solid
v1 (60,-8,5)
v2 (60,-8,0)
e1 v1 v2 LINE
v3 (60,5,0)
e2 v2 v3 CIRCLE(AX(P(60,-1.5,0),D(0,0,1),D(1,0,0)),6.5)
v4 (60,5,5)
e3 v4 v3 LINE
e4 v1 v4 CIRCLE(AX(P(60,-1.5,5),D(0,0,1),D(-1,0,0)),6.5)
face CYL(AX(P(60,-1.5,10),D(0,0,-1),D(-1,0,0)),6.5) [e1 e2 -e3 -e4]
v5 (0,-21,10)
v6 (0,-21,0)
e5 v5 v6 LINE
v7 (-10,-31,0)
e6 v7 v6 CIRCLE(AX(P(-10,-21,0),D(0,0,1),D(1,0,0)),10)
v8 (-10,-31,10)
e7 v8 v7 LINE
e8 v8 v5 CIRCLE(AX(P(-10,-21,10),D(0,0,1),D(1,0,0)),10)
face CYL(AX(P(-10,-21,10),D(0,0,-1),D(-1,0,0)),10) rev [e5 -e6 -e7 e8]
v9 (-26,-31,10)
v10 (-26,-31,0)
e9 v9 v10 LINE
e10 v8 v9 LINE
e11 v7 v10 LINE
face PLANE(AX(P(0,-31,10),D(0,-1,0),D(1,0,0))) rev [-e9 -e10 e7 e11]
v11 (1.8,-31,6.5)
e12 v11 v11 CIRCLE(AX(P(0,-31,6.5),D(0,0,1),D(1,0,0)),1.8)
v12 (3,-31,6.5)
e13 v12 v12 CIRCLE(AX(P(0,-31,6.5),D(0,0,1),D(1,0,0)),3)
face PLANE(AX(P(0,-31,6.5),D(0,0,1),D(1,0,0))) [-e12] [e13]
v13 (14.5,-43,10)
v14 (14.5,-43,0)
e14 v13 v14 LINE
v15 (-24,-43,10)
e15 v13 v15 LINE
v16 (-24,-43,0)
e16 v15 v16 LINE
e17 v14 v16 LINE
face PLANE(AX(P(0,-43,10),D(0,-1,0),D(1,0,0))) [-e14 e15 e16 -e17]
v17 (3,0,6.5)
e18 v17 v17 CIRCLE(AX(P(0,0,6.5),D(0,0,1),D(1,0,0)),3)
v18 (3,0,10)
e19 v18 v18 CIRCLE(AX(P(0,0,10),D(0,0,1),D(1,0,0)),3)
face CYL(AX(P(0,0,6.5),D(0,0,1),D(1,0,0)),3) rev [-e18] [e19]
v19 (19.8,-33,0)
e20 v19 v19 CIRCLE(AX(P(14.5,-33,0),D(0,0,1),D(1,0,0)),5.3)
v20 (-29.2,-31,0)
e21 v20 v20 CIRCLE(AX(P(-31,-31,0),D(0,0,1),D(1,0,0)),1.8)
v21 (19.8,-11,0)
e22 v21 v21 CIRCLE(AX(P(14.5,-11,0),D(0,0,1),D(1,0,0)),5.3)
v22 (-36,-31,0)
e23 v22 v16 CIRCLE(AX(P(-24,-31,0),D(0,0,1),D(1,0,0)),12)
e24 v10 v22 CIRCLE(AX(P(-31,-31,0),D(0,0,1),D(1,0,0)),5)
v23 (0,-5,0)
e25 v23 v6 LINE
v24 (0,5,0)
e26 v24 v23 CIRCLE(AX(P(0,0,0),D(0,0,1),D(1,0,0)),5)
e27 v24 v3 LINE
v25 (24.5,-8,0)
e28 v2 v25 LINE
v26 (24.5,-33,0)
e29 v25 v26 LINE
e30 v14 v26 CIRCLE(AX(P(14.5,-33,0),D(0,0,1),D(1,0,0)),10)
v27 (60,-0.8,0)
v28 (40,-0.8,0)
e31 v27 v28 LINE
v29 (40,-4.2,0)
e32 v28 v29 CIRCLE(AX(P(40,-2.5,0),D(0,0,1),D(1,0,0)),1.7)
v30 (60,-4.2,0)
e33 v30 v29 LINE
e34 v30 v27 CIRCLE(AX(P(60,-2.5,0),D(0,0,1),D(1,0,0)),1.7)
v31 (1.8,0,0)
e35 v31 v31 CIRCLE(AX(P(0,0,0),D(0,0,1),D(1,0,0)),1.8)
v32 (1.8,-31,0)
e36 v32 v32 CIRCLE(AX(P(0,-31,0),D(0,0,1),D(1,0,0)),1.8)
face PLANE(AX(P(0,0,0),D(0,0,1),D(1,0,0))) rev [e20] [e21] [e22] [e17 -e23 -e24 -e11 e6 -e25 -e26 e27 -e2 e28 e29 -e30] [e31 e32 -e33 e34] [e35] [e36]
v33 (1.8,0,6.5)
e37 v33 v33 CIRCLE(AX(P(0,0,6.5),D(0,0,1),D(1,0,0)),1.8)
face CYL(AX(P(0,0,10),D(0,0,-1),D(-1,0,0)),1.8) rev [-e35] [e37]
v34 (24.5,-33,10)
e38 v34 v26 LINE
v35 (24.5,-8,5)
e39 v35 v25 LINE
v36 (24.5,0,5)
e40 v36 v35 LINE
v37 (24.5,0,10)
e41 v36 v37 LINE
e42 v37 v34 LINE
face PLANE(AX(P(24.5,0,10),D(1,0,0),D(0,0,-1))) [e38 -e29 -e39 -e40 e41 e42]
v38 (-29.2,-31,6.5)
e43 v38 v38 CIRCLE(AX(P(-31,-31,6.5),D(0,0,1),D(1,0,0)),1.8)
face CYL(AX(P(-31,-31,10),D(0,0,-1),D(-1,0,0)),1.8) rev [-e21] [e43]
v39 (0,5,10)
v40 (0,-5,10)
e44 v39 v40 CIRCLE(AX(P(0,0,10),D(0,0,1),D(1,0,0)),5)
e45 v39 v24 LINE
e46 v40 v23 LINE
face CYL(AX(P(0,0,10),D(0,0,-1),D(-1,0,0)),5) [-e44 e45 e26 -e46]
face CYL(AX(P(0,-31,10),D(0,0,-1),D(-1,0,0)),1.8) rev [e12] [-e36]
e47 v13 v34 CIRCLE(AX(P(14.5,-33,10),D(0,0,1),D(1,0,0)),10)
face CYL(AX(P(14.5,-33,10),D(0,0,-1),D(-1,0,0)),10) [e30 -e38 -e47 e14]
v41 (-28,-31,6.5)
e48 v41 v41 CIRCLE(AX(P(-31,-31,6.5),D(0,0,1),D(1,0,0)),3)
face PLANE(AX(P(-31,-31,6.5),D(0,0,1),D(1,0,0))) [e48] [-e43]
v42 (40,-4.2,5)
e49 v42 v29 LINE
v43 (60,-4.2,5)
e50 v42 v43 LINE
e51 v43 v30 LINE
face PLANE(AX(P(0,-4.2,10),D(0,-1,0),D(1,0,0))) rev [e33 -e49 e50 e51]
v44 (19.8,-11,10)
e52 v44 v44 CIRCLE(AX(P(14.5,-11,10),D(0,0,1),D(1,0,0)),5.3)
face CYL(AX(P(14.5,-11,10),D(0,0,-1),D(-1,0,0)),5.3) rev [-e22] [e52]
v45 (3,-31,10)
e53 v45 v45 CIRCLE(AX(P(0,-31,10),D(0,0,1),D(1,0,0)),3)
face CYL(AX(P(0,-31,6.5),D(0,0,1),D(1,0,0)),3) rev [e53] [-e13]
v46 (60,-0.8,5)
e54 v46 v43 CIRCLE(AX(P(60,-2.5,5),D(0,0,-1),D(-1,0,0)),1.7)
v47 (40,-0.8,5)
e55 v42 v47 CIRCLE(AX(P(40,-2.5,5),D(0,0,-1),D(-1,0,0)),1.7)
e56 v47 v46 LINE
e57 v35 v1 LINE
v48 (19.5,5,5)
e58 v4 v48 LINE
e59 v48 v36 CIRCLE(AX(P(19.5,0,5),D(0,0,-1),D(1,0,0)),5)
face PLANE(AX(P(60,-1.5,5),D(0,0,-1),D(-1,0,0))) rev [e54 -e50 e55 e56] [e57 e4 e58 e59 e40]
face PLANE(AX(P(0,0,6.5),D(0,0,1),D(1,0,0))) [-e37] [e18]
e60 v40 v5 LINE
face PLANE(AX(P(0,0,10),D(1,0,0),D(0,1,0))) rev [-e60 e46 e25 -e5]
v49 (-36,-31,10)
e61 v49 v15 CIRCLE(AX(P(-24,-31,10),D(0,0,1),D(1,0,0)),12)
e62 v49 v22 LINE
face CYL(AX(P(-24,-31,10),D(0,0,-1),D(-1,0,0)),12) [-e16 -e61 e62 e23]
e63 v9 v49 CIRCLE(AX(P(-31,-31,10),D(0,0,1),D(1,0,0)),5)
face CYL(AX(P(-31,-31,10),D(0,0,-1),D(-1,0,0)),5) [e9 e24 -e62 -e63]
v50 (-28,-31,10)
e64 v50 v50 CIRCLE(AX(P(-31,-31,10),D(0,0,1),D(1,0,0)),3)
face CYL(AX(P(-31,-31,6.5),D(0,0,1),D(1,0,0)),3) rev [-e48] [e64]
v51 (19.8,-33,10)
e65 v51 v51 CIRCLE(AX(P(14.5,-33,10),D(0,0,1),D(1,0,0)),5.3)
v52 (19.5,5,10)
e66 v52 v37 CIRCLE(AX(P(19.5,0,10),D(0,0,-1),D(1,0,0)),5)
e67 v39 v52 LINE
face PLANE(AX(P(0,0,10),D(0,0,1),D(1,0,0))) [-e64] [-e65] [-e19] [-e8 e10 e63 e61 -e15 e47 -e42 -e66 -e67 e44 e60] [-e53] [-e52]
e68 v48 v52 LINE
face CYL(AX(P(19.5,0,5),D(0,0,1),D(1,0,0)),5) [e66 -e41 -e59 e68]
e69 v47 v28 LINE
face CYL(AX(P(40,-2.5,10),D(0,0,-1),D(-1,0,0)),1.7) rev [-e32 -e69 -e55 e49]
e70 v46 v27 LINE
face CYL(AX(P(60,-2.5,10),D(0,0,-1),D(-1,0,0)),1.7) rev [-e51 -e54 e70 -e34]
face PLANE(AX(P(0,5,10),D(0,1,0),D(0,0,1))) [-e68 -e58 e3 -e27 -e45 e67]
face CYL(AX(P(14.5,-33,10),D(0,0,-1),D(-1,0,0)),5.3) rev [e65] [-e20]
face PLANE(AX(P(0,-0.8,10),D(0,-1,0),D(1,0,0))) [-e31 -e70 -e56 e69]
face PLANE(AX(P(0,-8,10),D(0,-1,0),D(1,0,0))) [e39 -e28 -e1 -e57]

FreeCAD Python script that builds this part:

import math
import FreeCAD as App
import Part
import Sketcher
Q = App.Units.Quantity

doc = App.newDocument("Part")
params = doc.addObject("Spreadsheet::Sheet", "Params")
for row, (alias, value) in enumerate([
    ("sketch1_radius", "5 mm"),
    ("sketch1_radius2", "10 mm"),
    ("sketch1_radius3", "12 mm"),
    ("sketch1_diameter", "10.6 mm"),
    ("sketch1_diameter2", "3.6 mm"),
    ("pad1_length", "10 mm"),
    ("sketch2_diameter", "6 mm"),
    ("pocket1_length", "3.5 mm"),
    ("sketch3_radius", "5 mm"),
    ("sketch3_radius2", "6.5 mm"),
    ("sketch3_width", "35.5 mm"),
    ("pocket2_length", "5 mm"),
], start=1):
    params.set(f"A{row}", alias)
    params.set(f"B{row}", "=" + value)
    params.setAlias(f"B{row}", alias)

body = doc.addObject("PartDesign::Body", "Body")

sketch1 = body.newObject("Sketcher::SketchObject", "Sketch")
sketch1.AttachmentSupport = (doc.getObject("XY_Plane"), [""])
sketch1.MapMode = "FlatFace"
sketch1.addGeometry([
    Part.LineSegment(App.Vector(60, 5, 0), App.Vector(0, 5, 0)),
    Part.ArcOfCircle(Part.Circle(App.Vector(0, 0, 0), App.Vector(0, 0, 1), 5), math.radians(90), math.radians(270)),
    Part.LineSegment(App.Vector(0, -5, 0), App.Vector(0, -21, 0)),
    Part.ArcOfCircle(Part.Circle(App.Vector(-10, -21, 0), App.Vector(0, 0, 1), 10), math.radians(-90), math.radians(0)),
    Part.LineSegment(App.Vector(-10, -31, 0), App.Vector(-26, -31, 0)),
    Part.ArcOfCircle(Part.Circle(App.Vector(-31, -31, 0), App.Vector(0, 0, 1), 5), math.radians(0), math.radians(180)),
    Part.ArcOfCircle(Part.Circle(App.Vector(-24, -31, 0), App.Vector(0, 0, 1), 12), math.radians(-180), math.radians(-90)),
    Part.LineSegment(App.Vector(-24, -43, 0), App.Vector(14.5, -43, 0)),
    Part.ArcOfCircle(Part.Circle(App.Vector(14.5, -33, 0), App.Vector(0, 0, 1), 10), math.radians(-90), math.radians(0)),
    Part.LineSegment(App.Vector(24.5, -33, 0), App.Vector(24.5, -8, 0)),
    Part.LineSegment(App.Vector(24.5, -8, 0), App.Vector(60, -8, 0)),
    Part.ArcOfCircle(Part.Circle(App.Vector(60, -1.5, 0), App.Vector(0, 0, 1), 6.5), math.radians(-90), math.radians(90)),
    Part.Circle(App.Vector(14.5, -33, 0), App.Vector(0, 0, 1), 5.3),
    Part.Circle(App.Vector(0, -31, 0), App.Vector(0, 0, 1), 1.8),
    Part.Circle(App.Vector(-31, -31, 0), App.Vector(0, 0, 1), 1.8),
    Part.Circle(App.Vector(14.5, -11, 0), App.Vector(0, 0, 1), 5.3),
    Part.LineSegment(App.Vector(60, -4.2, 0), App.Vector(40, -4.2, 0)),
    Part.ArcOfCircle(Part.Circle(App.Vector(40, -2.5, 0), App.Vector(0, 0, 1), 1.7), math.radians(90), math.radians(270)),
    Part.LineSegment(App.Vector(40, -0.8, 0), App.Vector(60, -0.8, 0)),
    Part.ArcOfCircle(Part.Circle(App.Vector(60, -2.5, 0), App.Vector(0, 0, 1), 1.7), math.radians(-90), math.radians(90)),
    Part.Circle(App.Vector(0, 0, 0), App.Vector(0, 0, 1), 1.8),
], False)
sketch1.addConstraint([
    Sketcher.Constraint("Tangent", 0, 2, 1, 1),
    Sketcher.Constraint("Coincident", 1, 2, 2, 1),
    Sketcher.Constraint("Tangent", 2, 2, 3, 2),
    Sketcher.Constraint("Tangent", 3, 1, 4, 1),
    Sketcher.Constraint("Coincident", 4, 2, 5, 1),
    Sketcher.Constraint("Tangent", 5, 2, 6, 1),
    Sketcher.Constraint("Tangent", 6, 2, 7, 1),
    Sketcher.Constraint("Tangent", 7, 2, 8, 1),
    Sketcher.Constraint("Tangent", 8, 2, 9, 1),
    Sketcher.Constraint("Coincident", 9, 2, 10, 1),
    Sketcher.Constraint("Tangent", 10, 2, 11, 1),
    Sketcher.Constraint("Tangent", 11, 2, 0, 1),
    Sketcher.Constraint("Tangent", 16, 2, 17, 2),
    Sketcher.Constraint("Tangent", 17, 1, 18, 1),
    Sketcher.Constraint("Tangent", 18, 2, 19, 2),
    Sketcher.Constraint("Tangent", 19, 1, 16, 1),
    Sketcher.Constraint("Horizontal", 0),
    Sketcher.Constraint("Vertical", 2),
    Sketcher.Constraint("Horizontal", 4),
    Sketcher.Constraint("Horizontal", 7),
    Sketcher.Constraint("Vertical", 9),
    Sketcher.Constraint("Horizontal", 10),
    Sketcher.Constraint("Horizontal", 16),
    Sketcher.Constraint("Horizontal", 18),
    Sketcher.Constraint("Coincident", 1, 3, -1, 1),
    Sketcher.Constraint("Coincident", 20, 3, -1, 1),
    Sketcher.Constraint("Coincident", 12, 3, 8, 3),
    Sketcher.Constraint("Coincident", 14, 3, 5, 3),
    Sketcher.Constraint("Equal", 1, 5),
    Sketcher.Constraint("Equal", 3, 8),
    Sketcher.Constraint("Equal", 13, 14),
    Sketcher.Constraint("Equal", 12, 15),
    Sketcher.Constraint("Equal", 14, 20),
    Sketcher.Constraint("PointOnObject", 13, 3, -2),
    Sketcher.Constraint("PointOnObject", 1, 2, -2),
    Sketcher.Constraint("Horizontal", 5, 3, 6, 3),
    Sketcher.Constraint("Horizontal", 6, 3, 13, 3),
    Sketcher.Constraint("Horizontal", 14, 3, 3, 1),
    Sketcher.Constraint("Vertical", 12, 3, 15, 3),
    Sketcher.Constraint("Vertical", 11, 3, 19, 3),
    Sketcher.Constraint("Equal", 4, 2),
    Sketcher.Constraint("Radius", 1, Q("5 mm")),
    Sketcher.Constraint("Radius", 3, Q("10 mm")),
    Sketcher.Constraint("Radius", 6, Q("12 mm")),
    Sketcher.Constraint("Diameter", 12, Q("10.6 mm")),
    Sketcher.Constraint("Diameter", 13, Q("3.6 mm")),
    Sketcher.Constraint("Radius", 11, Q("6.5 mm")),
    Sketcher.Constraint("Radius", 17, Q("1.7 mm")),
    Sketcher.Constraint("DistanceX", 0, 2, 0, 1, Q("60 mm")),
    Sketcher.Constraint("DistanceX", 4, 2, 4, 1, Q("16 mm")),
    Sketcher.Constraint("DistanceX", 16, 2, 16, 1, Q("20 mm")),
    Sketcher.Constraint("DistanceX", 7, 1, 7, 2, Q("38.5 mm")),
    Sketcher.Constraint("DistanceY", 15, 3, -1, 1, Q("11 mm")),
    Sketcher.Constraint("DistanceY", 17, 3, 11, 3, Q("1 mm")),
])
sketch1.setExpression("Constraints[41]", "Params.sketch1_radius")
sketch1.setExpression("Constraints[42]", "Params.sketch1_radius2")
sketch1.setExpression("Constraints[43]", "Params.sketch1_radius3")
sketch1.setExpression("Constraints[44]", "Params.sketch1_diameter")
sketch1.setExpression("Constraints[45]", "Params.sketch1_diameter2")
pad1 = body.newObject("PartDesign::Pad", "Pad")
pad1.Profile = sketch1
pad1.setExpression("Length", "Params.pad1_length")

sketch2 = body.newObject("Sketcher::SketchObject", "Sketch001")
sketch2.AttachmentSupport = (doc.getObject("XY_Plane"), [""])
sketch2.MapMode = "FlatFace"
sketch2.AttachmentOffset = App.Placement(App.Vector(0, 0, 10), App.Rotation())
sketch2.addGeometry([
    Part.Circle(App.Vector(-31, -31, 0), App.Vector(0, 0, 1), 3),
    Part.Circle(App.Vector(0, -31, 0), App.Vector(0, 0, 1), 3),
    Part.Circle(App.Vector(0, 0, 0), App.Vector(0, 0, 1), 3),
], False)
sketch2.addConstraint([
    Sketcher.Constraint("Coincident", 2, 3, -1, 1),
    Sketcher.Constraint("Equal", 0, 1),
    Sketcher.Constraint("Equal", 1, 2),
    Sketcher.Constraint("PointOnObject", 1, 3, -2),
    Sketcher.Constraint("Horizontal", 0, 3, 1, 3),
    Sketcher.Constraint("Diameter", 0, Q("6 mm")),
    Sketcher.Constraint("DistanceX", 0, 3, -1, 1, Q("31 mm")),
    Sketcher.Constraint("DistanceY", 0, 3, -1, 1, Q("31 mm")),
])
sketch2.setExpression("Constraints[5]", "Params.sketch2_diameter")
pocket1 = body.newObject("PartDesign::Pocket", "Pocket")
pocket1.Profile = sketch2
pocket1.setExpression("Length", "Params.pocket1_length")

sketch3 = body.newObject("Sketcher::SketchObject", "Sketch002")
sketch3.AttachmentSupport = (doc.getObject("XY_Plane"), [""])
sketch3.MapMode = "FlatFace"
sketch3.AttachmentOffset = App.Placement(App.Vector(0, 0, 5), App.Rotation())
sketch3.addGeometry([
    Part.LineSegment(App.Vector(24, 0, 0), App.Vector(24, -8, 0)),
    Part.LineSegment(App.Vector(24, -8, 0), App.Vector(60, -8, 0)),
    Part.ArcOfCircle(Part.Circle(App.Vector(60, -2, 0), App.Vector(0, 0, 1), 6), math.radians(-90), math.radians(90)),
    Part.LineSegment(App.Vector(60, 5, 0), App.Vector(20, 5, 0)),
    Part.ArcOfCircle(Part.Circle(App.Vector(20, 0, 0), App.Vector(0, 0, 1), 5), math.radians(0), math.radians(90)),
], False)
sketch3.addConstraint([
    Sketcher.Constraint("Coincident", 0, 2, 1, 1),
    Sketcher.Constraint("Tangent", 1, 2, 2, 1),
    Sketcher.Constraint("Tangent", 2, 2, 3, 1),
    Sketcher.Constraint("Tangent", 3, 2, 4, 2),
    Sketcher.Constraint("Tangent", 4, 1, 0, 1),
    Sketcher.Constraint("Vertical", 0),
    Sketcher.Constraint("Horizontal", 1),
    Sketcher.Constraint("Horizontal", 3),
    Sketcher.Constraint("PointOnObject", 4, 3, -1),
    Sketcher.Constraint("Radius", 4, Q("5 mm")),
    Sketcher.Constraint("Radius", 2, Q("6.5 mm")),
    Sketcher.Constraint("DistanceX", 1, 1, 1, 2, Q("35.5 mm")),
    Sketcher.Constraint("DistanceX", -1, 1, 2, 3, Q("60 mm")),
])
sketch3.setExpression("Constraints[9]", "Params.sketch3_radius")
sketch3.setExpression("Constraints[10]", "Params.sketch3_radius2")
sketch3.setExpression("Constraints[11]", "Params.sketch3_width")
pocket2 = body.newObject("PartDesign::Pocket", "Pocket001")
pocket2.Profile = sketch3
pocket2.setExpression("Length", "Params.pocket2_length")
pocket2.Reversed = True

doc.recompute()
